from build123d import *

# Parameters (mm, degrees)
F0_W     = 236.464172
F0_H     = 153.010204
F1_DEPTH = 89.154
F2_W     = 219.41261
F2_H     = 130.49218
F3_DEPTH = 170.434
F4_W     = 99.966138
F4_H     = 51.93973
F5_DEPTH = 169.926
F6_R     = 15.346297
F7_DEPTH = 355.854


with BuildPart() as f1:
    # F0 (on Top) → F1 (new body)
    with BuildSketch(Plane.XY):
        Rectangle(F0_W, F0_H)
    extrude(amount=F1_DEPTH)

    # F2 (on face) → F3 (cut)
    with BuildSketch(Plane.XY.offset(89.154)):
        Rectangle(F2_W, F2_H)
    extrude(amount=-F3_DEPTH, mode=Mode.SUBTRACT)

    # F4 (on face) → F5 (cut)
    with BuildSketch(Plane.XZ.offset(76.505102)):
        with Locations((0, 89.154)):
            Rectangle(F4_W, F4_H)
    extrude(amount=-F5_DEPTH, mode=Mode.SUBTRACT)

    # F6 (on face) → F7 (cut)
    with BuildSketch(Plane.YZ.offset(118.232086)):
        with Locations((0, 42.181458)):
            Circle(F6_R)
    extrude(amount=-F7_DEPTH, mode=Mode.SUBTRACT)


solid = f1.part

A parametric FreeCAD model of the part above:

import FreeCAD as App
import Part
import Sketcher
Q = App.Units.Quantity

doc = App.newDocument("Part")
body = doc.addObject("PartDesign::Body", "Body")

sketch1 = body.newObject("Sketcher::SketchObject", "Sketch")
sketch1.AttachmentSupport = (doc.getObject("XY_Plane"), [""])
sketch1.MapMode = "FlatFace"
sketch1.addGeometry([
    Part.LineSegment(App.Vector(-118, 77, 0), App.Vector(-118, -77, 0)),
    Part.LineSegment(App.Vector(-118, -77, 0), App.Vector(118, -77, 0)),
    Part.LineSegment(App.Vector(118, -77, 0), App.Vector(118, 77, 0)),
    Part.LineSegment(App.Vector(118, 77, 0), App.Vector(-118, 77, 0)),
], False)
sketch1.addConstraint([
    Sketcher.Constraint("Coincident", 0, 2, 1, 1),
    Sketcher.Constraint("Coincident", 1, 2, 2, 1),
    Sketcher.Constraint("Coincident", 2, 2, 3, 1),
    Sketcher.Constraint("Coincident", 3, 2, 0, 1),
    Sketcher.Constraint("Vertical", 0),
    Sketcher.Constraint("Horizontal", 1),
    Sketcher.Constraint("Vertical", 2),
    Sketcher.Constraint("Horizontal", 3),
    Sketcher.Constraint("Symmetric", 0, 2, 2, 2, -1, 1),
    Sketcher.Constraint("DistanceX", 1, 1, 1, 2, Q("236.464172 mm")),
    Sketcher.Constraint("DistanceY", 0, 2, -1, 1, Q("76.505102 mm")),
])
pad1 = body.newObject("PartDesign::Pad", "Pad")
pad1.Profile = sketch1
pad1.Length = Q("3.51 in")

sketch2 = body.newObject("Sketcher::SketchObject", "Sketch001")
sketch2.AttachmentSupport = (doc.getObject("XY_Plane"), [""])
sketch2.MapMode = "FlatFace"
sketch2.AttachmentOffset = App.Placement(App.Vector(0, 0, 3.51 * 25.4), App.Rotation())
sketch2.addGeometry([
    Part.LineSegment(App.Vector(-110, 65, 0), App.Vector(-110, -65, 0)),
    Part.LineSegment(App.Vector(-110, -65, 0), App.Vector(110, -65, 0)),
    Part.LineSegment(App.Vector(110, -65, 0), App.Vector(110, 65, 0)),
    Part.LineSegment(App.Vector(110, 65, 0), App.Vector(-110, 65, 0)),
], False)
sketch2.addConstraint([
    Sketcher.Constraint("Coincident", 0, 2, 1, 1),
    Sketcher.Constraint("Coincident", 1, 2, 2, 1),
    Sketcher.Constraint("Coincident", 2, 2, 3, 1),
    Sketcher.Constraint("Coincident", 3, 2, 0, 1),
    Sketcher.Constraint("Vertical", 0),
    Sketcher.Constraint("Horizontal", 1),
    Sketcher.Constraint("Vertical", 2),
    Sketcher.Constraint("Horizontal", 3),
    Sketcher.Constraint("Symmetric", 0, 2, 2, 2, -1, 1),
    Sketcher.Constraint("DistanceX", 1, 1, 1, 2, Q("219.41261 mm")),
    Sketcher.Constraint("DistanceY", 0, 2, 0, 1, Q("130.49218 mm")),
])
pocket1 = body.newObject("PartDesign::Pocket", "Pocket")
pocket1.Profile = sketch2
pocket1.Length = Q("6.71 in")

sketch3 = body.newObject("Sketcher::SketchObject", "Sketch002")
sketch3.AttachmentSupport = (doc.getObject("XZ_Plane"), [""])
sketch3.MapMode = "FlatFace"
sketch3.AttachmentOffset = App.Placement(App.Vector(0, 0, 76.505102), App.Rotation())
sketch3.addGeometry([
    Part.LineSegment(App.Vector(-50, 115, 0), App.Vector(-50, 63, 0)),
    Part.LineSegment(App.Vector(-50, 63, 0), App.Vector(50, 63, 0)),
    Part.LineSegment(App.Vector(50, 63, 0), App.Vector(50, 115, 0)),
    Part.LineSegment(App.Vector(50, 115, 0), App.Vector(-50, 115, 0)),
], False)
sketch3.addConstraint([
    Sketcher.Constraint("Coincident", 0, 2, 1, 1),
    Sketcher.Constraint("Coincident", 1, 2, 2, 1),
    Sketcher.Constraint("Coincident", 2, 2, 3, 1),
    Sketcher.Constraint("Coincident", 3, 2, 0, 1),
    Sketcher.Constraint("Vertical", 0),
    Sketcher.Constraint("Horizontal", 1),
    Sketcher.Constraint("Vertical", 2),
    Sketcher.Constraint("Horizontal", 3),
    Sketcher.Constraint("DistanceX", 1, 1, 1, 2, Q("99.966138 mm")),
    Sketcher.Constraint("DistanceY", 0, 2, 0, 1, Q("51.93973 mm")),
    Sketcher.Constraint("DistanceX", 0, 2, -1, 1, Q("49.983069 mm")),
    Sketcher.Constraint("DistanceY", -1, 1, 0, 2, Q("63.184135 mm")),
])
pocket2 = body.newObject("PartDesign::Pocket", "Pocket001")
pocket2.Profile = sketch3
pocket2.Length = Q("6.69 in")

sketch4 = body.newObject("Sketcher::SketchObject", "Sketch003")
sketch4.AttachmentSupport = (doc.getObject("YZ_Plane"), [""])
sketch4.MapMode = "FlatFace"
sketch4.AttachmentOffset = App.Placement(App.Vector(0, 0, 118.232086), App.Rotation())
sketch4.addGeometry(Part.Circle(App.Vector(0, 42, 0), App.Vector(0, 0, 1), 15), False)
sketch4.addConstraint([
    Sketcher.Constraint("PointOnObject", 0, 3, -2),
    Sketcher.Constraint("Diameter", 0, Q("30.692594 mm")),
    Sketcher.Constraint("DistanceY", -1, 1, 0, 3, Q("42.181458 mm")),
])
pocket3 = body.newObject("PartDesign::Pocket", "Pocket002")
pocket3.Profile = sketch4
pocket3.Length = Q("14.01 in")

doc.recompute()
